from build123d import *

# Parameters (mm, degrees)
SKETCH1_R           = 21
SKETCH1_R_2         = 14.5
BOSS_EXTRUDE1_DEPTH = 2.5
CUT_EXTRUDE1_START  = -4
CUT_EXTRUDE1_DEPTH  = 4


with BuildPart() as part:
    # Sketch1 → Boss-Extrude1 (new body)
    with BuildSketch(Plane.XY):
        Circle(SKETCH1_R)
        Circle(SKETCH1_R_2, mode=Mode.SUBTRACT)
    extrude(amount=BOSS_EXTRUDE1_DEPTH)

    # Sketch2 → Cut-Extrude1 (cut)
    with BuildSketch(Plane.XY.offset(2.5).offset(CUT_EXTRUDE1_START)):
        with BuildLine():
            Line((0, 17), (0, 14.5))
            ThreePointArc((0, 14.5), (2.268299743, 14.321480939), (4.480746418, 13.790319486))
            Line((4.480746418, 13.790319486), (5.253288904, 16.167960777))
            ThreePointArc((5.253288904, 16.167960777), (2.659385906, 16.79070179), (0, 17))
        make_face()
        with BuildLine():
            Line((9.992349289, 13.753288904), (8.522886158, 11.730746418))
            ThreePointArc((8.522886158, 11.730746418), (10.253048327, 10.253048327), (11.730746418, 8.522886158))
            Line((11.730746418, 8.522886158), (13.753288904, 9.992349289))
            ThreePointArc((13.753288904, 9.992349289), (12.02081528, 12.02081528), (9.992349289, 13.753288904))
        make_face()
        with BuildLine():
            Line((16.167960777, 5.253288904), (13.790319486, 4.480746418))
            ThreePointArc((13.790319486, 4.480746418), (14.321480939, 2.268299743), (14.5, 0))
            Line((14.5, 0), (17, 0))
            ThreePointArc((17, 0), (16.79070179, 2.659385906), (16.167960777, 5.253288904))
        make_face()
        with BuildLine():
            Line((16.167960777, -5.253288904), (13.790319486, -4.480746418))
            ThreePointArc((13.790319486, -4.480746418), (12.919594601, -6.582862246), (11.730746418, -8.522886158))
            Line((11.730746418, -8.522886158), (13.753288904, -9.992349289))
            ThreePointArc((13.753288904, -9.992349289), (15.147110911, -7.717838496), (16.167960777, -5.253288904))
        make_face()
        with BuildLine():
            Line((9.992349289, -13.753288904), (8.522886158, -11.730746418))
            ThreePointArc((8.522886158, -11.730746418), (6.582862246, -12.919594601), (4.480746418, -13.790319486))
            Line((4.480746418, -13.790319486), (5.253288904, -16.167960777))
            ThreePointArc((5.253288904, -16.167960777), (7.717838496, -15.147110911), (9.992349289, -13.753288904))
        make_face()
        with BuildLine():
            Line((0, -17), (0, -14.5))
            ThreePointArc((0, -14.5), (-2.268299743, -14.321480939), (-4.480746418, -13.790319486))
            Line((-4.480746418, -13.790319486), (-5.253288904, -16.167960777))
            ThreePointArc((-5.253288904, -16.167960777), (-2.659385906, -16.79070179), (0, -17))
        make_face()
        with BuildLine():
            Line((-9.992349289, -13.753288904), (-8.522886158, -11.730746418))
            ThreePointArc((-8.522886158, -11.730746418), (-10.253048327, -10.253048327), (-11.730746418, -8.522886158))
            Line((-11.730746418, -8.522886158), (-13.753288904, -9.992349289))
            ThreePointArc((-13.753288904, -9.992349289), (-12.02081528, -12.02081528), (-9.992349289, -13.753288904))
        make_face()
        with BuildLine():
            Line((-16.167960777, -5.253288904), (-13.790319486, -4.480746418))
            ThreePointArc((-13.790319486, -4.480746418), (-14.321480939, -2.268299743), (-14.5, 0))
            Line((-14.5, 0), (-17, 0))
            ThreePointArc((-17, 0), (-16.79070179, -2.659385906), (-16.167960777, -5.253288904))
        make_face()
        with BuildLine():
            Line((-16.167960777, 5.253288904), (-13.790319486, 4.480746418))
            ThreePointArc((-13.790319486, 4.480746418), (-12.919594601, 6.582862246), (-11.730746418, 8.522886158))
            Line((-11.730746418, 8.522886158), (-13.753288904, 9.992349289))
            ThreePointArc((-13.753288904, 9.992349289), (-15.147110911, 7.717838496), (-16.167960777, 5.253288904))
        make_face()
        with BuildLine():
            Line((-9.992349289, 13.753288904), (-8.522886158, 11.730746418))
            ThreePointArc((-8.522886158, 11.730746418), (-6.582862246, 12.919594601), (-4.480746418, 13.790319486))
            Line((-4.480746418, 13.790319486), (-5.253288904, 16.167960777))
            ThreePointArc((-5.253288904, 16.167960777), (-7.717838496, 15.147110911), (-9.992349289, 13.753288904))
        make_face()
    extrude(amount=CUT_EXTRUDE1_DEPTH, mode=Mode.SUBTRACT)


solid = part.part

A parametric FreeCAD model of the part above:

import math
import FreeCAD as App
import Part
import Sketcher
from FreeCAD import Vector
Q = App.Units.Quantity

doc = App.newDocument("Part")
body = doc.addObject("PartDesign::Body", "Body")

# Sketch on XY plane
sketch1 = doc.addObject("Sketcher::SketchObject", "Sketch")
body.addObject(sketch1)
sketch1.AttachmentSupport = (doc.XY_Plane, [""])
sketch1.MapMode = "FlatFace"
sketch1.addGeometry(Part.Circle(Vector(0, 0, 0), Vector(0, 0, 1), 21), False)
sketch1.addGeometry(Part.Circle(Vector(0, 0, 0), Vector(0, 0, 1), 14.5), False)
sketch1.addConstraint(Sketcher.Constraint("Coincident", 0, 3, -1, 1))
sketch1.addConstraint(Sketcher.Constraint("Coincident", 1, 3, -1, 1))
sketch1.addConstraint(Sketcher.Constraint("Diameter", 0, 42.0))
sketch1.addConstraint(Sketcher.Constraint("Diameter", 1, 29.0))
pad1 = doc.addObject("PartDesign::Pad", "Pad")
body.addObject(pad1)
pad1.Profile = sketch1
pad1.Length = 2.5

# Sketch on XY plane
sketch2 = doc.addObject("Sketcher::SketchObject", "Sketch001")
body.addObject(sketch2)
sketch2.AttachmentSupport = (doc.XY_Plane, [""])
sketch2.MapMode = "FlatFace"
sketch2.AttachmentOffset = App.Placement(Vector(0, 0, -1.5), App.Rotation())
sketch2.addGeometry(Part.LineSegment(Vector(0, 17, 0), Vector(0, 14.5, 0)), False)
sketch2.addGeometry(Part.ArcOfCircle(Part.Circle(Vector(0, 0, 0), Vector(0, 0, 1), 14.5), math.radians(72), math.radians(90)), False)
sketch2.addGeometry(Part.LineSegment(Vector(4.480746, 13.790319, 0), Vector(5.253289, 16.167961, 0)), False)
sketch2.addGeometry(Part.ArcOfCircle(Part.Circle(Vector(0, 0, 0), Vector(0, 0, 1), 17), math.radians(72), math.radians(90)), False)
sketch2.addGeometry(Part.LineSegment(Vector(9.992349, 13.753289, 0), Vector(8.522886, 11.730746, 0)), False)
sketch2.addGeometry(Part.ArcOfCircle(Part.Circle(Vector(0, 0, 0), Vector(0, 0, 1), 14.5), math.radians(36), math.radians(54)), False)
sketch2.addGeometry(Part.LineSegment(Vector(11.730746, 8.522886, 0), Vector(13.753289, 9.992349, 0)), False)
sketch2.addGeometry(Part.ArcOfCircle(Part.Circle(Vector(0, 0, 0), Vector(0, 0, 1), 17), math.radians(36), math.radians(54)), False)
sketch2.addGeometry(Part.LineSegment(Vector(16.167961, 5.253289, 0), Vector(13.790319, 4.480746, 0)), False)
sketch2.addGeometry(Part.ArcOfCircle(Part.Circle(Vector(0, 0, 0), Vector(0, 0, 1), 14.5), math.radians(0), math.radians(18)), False)
sketch2.addGeometry(Part.LineSegment(Vector(14.5, 0, 0), Vector(17, 0, 0)), False)
sketch2.addGeometry(Part.ArcOfCircle(Part.Circle(Vector(0, 0, 0), Vector(0, 0, 1), 17), math.radians(0), math.radians(18)), False)
sketch2.addGeometry(Part.LineSegment(Vector(16.167961, -5.253289, 0), Vector(13.790319, -4.480746, 0)), False)
sketch2.addGeometry(Part.ArcOfCircle(Part.Circle(Vector(0, 0, 0), Vector(0, 0, 1), 14.5), math.radians(-36), math.radians(-18)), False)
sketch2.addGeometry(Part.LineSegment(Vector(11.730746, -8.522886, 0), Vector(13.753289, -9.992349, 0)), False)
sketch2.addGeometry(Part.ArcOfCircle(Part.Circle(Vector(0, 0, 0), Vector(0, 0, 1), 17), math.radians(-36), math.radians(-18)), False)
sketch2.addGeometry(Part.LineSegment(Vector(9.992349, -13.753289, 0), Vector(8.522886, -11.730746, 0)), False)
sketch2.addGeometry(Part.ArcOfCircle(Part.Circle(Vector(0, 0, 0), Vector(0, 0, 1), 14.5), math.radians(-72), math.radians(-54)), False)
sketch2.addGeometry(Part.LineSegment(Vector(4.480746, -13.790319, 0), Vector(5.253289, -16.167961, 0)), False)
sketch2.addGeometry(Part.ArcOfCircle(Part.Circle(Vector(0, 0, 0), Vector(0, 0, 1), 17), math.radians(-72), math.radians(-54)), False)
sketch2.addGeometry(Part.LineSegment(Vector(0, -17, 0), Vector(0, -14.5, 0)), False)
sketch2.addGeometry(Part.ArcOfCircle(Part.Circle(Vector(0, 0, 0), Vector(0, 0, 1), 14.5), math.radians(-108), math.radians(-90)), False)
sketch2.addGeometry(Part.LineSegment(Vector(-4.480746, -13.790319, 0), Vector(-5.253289, -16.167961, 0)), False)
sketch2.addGeometry(Part.ArcOfCircle(Part.Circle(Vector(0, 0, 0), Vector(0, 0, 1), 17), math.radians(-108), math.radians(-90)), False)
sketch2.addGeometry(Part.LineSegment(Vector(-9.992349, -13.753289, 0), Vector(-8.522886, -11.730746, 0)), False)
sketch2.addGeometry(Part.ArcOfCircle(Part.Circle(Vector(0, 0, 0), Vector(0, 0, 1), 14.5), math.radians(-144), math.radians(-126)), False)
sketch2.addGeometry(Part.LineSegment(Vector(-11.730746, -8.522886, 0), Vector(-13.753289, -9.992349, 0)), False)
sketch2.addGeometry(Part.ArcOfCircle(Part.Circle(Vector(0, 0, 0), Vector(0, 0, 1), 17), math.radians(-144), math.radians(-126)), False)
sketch2.addGeometry(Part.LineSegment(Vector(-16.167961, -5.253289, 0), Vector(-13.790319, -4.480746, 0)), False)
sketch2.addGeometry(Part.ArcOfCircle(Part.Circle(Vector(0, 0, 0), Vector(0, 0, 1), 14.5), math.radians(180), math.radians(198)), False)
sketch2.addGeometry(Part.LineSegment(Vector(-14.5, 0, 0), Vector(-17, 0, 0)), False)
sketch2.addGeometry(Part.ArcOfCircle(Part.Circle(Vector(0, 0, 0), Vector(0, 0, 1), 17), math.radians(180), math.radians(198)), False)
sketch2.addGeometry(Part.LineSegment(Vector(-16.167961, 5.253289, 0), Vector(-13.790319, 4.480746, 0)), False)
sketch2.addGeometry(Part.ArcOfCircle(Part.Circle(Vector(0, 0, 0), Vector(0, 0, 1), 14.5), math.radians(144), math.radians(162)), False)
sketch2.addGeometry(Part.LineSegment(Vector(-11.730746, 8.522886, 0), Vector(-13.753289, 9.992349, 0)), False)
sketch2.addGeometry(Part.ArcOfCircle(Part.Circle(Vector(0, 0, 0), Vector(0, 0, 1), 17), math.radians(144), math.radians(162)), False)
sketch2.addGeometry(Part.LineSegment(Vector(-9.992349, 13.753289, 0), Vector(-8.522886, 11.730746, 0)), False)
sketch2.addGeometry(Part.ArcOfCircle(Part.Circle(Vector(0, 0, 0), Vector(0, 0, 1), 14.5), math.radians(108), math.radians(126)), False)
sketch2.addGeometry(Part.LineSegment(Vector(-4.480746, 13.790319, 0), Vector(-5.253289, 16.167961, 0)), False)
sketch2.addGeometry(Part.ArcOfCircle(Part.Circle(Vector(0, 0, 0), Vector(0, 0, 1), 17), math.radians(108), math.radians(126)), False)
sketch2.addConstraint(Sketcher.Constraint("Coincident", 0, 2, 1, 2))
sketch2.addConstraint(Sketcher.Constraint("Coincident", 1, 1, 2, 1))
sketch2.addConstraint(Sketcher.Constraint("Coincident", 2, 2, 3, 1))
sketch2.addConstraint(Sketcher.Constraint("Coincident", 3, 2, 0, 1))
sketch2.addConstraint(Sketcher.Constraint("Coincident", 4, 2, 5, 2))
sketch2.addConstraint(Sketcher.Constraint("Coincident", 5, 1, 6, 1))
sketch2.addConstraint(Sketcher.Constraint("Coincident", 6, 2, 7, 1))
sketch2.addConstraint(Sketcher.Constraint("Coincident", 7, 2, 4, 1))
sketch2.addConstraint(Sketcher.Constraint("Coincident", 8, 2, 9, 2))
sketch2.addConstraint(Sketcher.Constraint("Coincident", 9, 1, 10, 1))
sketch2.addConstraint(Sketcher.Constraint("Coincident", 10, 2, 11, 1))
sketch2.addConstraint(Sketcher.Constraint("Coincident", 11, 2, 8, 1))
sketch2.addConstraint(Sketcher.Constraint("Coincident", 12, 2, 13, 2))
sketch2.addConstraint(Sketcher.Constraint("Coincident", 13, 1, 14, 1))
sketch2.addConstraint(Sketcher.Constraint("Coincident", 14, 2, 15, 1))
sketch2.addConstraint(Sketcher.Constraint("Coincident", 15, 2, 12, 1))
sketch2.addConstraint(Sketcher.Constraint("Coincident", 16, 2, 17, 2))
sketch2.addConstraint(Sketcher.Constraint("Coincident", 17, 1, 18, 1))
sketch2.addConstraint(Sketcher.Constraint("Coincident", 18, 2, 19, 1))
sketch2.addConstraint(Sketcher.Constraint("Coincident", 19, 2, 16, 1))
sketch2.addConstraint(Sketcher.Constraint("Coincident", 20, 2, 21, 2))
sketch2.addConstraint(Sketcher.Constraint("Coincident", 21, 1, 22, 1))
sketch2.addConstraint(Sketcher.Constraint("Coincident", 22, 2, 23, 1))
sketch2.addConstraint(Sketcher.Constraint("Coincident", 23, 2, 20, 1))
sketch2.addConstraint(Sketcher.Constraint("Coincident", 24, 2, 25, 2))
sketch2.addConstraint(Sketcher.Constraint("Coincident", 25, 1, 26, 1))
sketch2.addConstraint(Sketcher.Constraint("Coincident", 26, 2, 27, 1))
sketch2.addConstraint(Sketcher.Constraint("Coincident", 27, 2, 24, 1))
sketch2.addConstraint(Sketcher.Constraint("Coincident", 28, 2, 29, 2))
sketch2.addConstraint(Sketcher.Constraint("Coincident", 29, 1, 30, 1))
sketch2.addConstraint(Sketcher.Constraint("Coincident", 30, 2, 31, 1))
sketch2.addConstraint(Sketcher.Constraint("Coincident", 31, 2, 28, 1))
sketch2.addConstraint(Sketcher.Constraint("Coincident", 32, 2, 33, 2))
sketch2.addConstraint(Sketcher.Constraint("Coincident", 33, 1, 34, 1))
sketch2.addConstraint(Sketcher.Constraint("Coincident", 34, 2, 35, 1))
sketch2.addConstraint(Sketcher.Constraint("Coincident", 35, 2, 32, 1))
sketch2.addConstraint(Sketcher.Constraint("Coincident", 36, 2, 37, 2))
sketch2.addConstraint(Sketcher.Constraint("Coincident", 37, 1, 38, 1))
sketch2.addConstraint(Sketcher.Constraint("Coincident", 38, 2, 39, 1))
sketch2.addConstraint(Sketcher.Constraint("Coincident", 39, 2, 36, 1))
sketch2.addConstraint(Sketcher.Constraint("Vertical", 0))
sketch2.addConstraint(Sketcher.Constraint("Horizontal", 10))
sketch2.addConstraint(Sketcher.Constraint("Vertical", 20))
sketch2.addConstraint(Sketcher.Constraint("Horizontal", 30))
sketch2.addConstraint(Sketcher.Constraint("Coincident", 1, 3, -1, 1))
sketch2.addConstraint(Sketcher.Constraint("Coincident", 3, 3, -1, 1))
sketch2.addConstraint(Sketcher.Constraint("Coincident", 5, 3, -1, 1))
sketch2.addConstraint(Sketcher.Constraint("Coincident", 7, 3, -1, 1))
sketch2.addConstraint(Sketcher.Constraint("Coincident", 9, 3, -1, 1))
sketch2.addConstraint(Sketcher.Constraint("Coincident", 11, 3, -1, 1))
sketch2.addConstraint(Sketcher.Constraint("Coincident", 13, 3, -1, 1))
sketch2.addConstraint(Sketcher.Constraint("Coincident", 15, 3, -1, 1))
sketch2.addConstraint(Sketcher.Constraint("Coincident", 17, 3, -1, 1))
sketch2.addConstraint(Sketcher.Constraint("Coincident", 19, 3, -1, 1))
sketch2.addConstraint(Sketcher.Constraint("Coincident", 21, 3, -1, 1))
sketch2.addConstraint(Sketcher.Constraint("Coincident", 23, 3, -1, 1))
sketch2.addConstraint(Sketcher.Constraint("Coincident", 25, 3, -1, 1))
sketch2.addConstraint(Sketcher.Constraint("Coincident", 27, 3, -1, 1))
sketch2.addConstraint(Sketcher.Constraint("Coincident", 29, 3, -1, 1))
sketch2.addConstraint(Sketcher.Constraint("Coincident", 31, 3, -1, 1))
sketch2.addConstraint(Sketcher.Constraint("Coincident", 33, 3, -1, 1))
sketch2.addConstraint(Sketcher.Constraint("Coincident", 35, 3, -1, 1))
sketch2.addConstraint(Sketcher.Constraint("Coincident", 37, 3, -1, 1))
sketch2.addConstraint(Sketcher.Constraint("Coincident", 39, 3, -1, 1))
sketch2.addConstraint(Sketcher.Constraint("Equal", 1, 5))
sketch2.addConstraint(Sketcher.Constraint("Equal", 3, 7))
sketch2.addConstraint(Sketcher.Constraint("Equal", 5, 9))
sketch2.addConstraint(Sketcher.Constraint("Equal", 7, 11))
sketch2.addConstraint(Sketcher.Constraint("Equal", 9, 13))
sketch2.addConstraint(Sketcher.Constraint("Equal", 11, 15))
sketch2.addConstraint(Sketcher.Constraint("Equal", 13, 17))
sketch2.addConstraint(Sketcher.Constraint("Equal", 15, 19))
sketch2.addConstraint(Sketcher.Constraint("Equal", 17, 21))
sketch2.addConstraint(Sketcher.Constraint("Equal", 19, 23))
sketch2.addConstraint(Sketcher.Constraint("Equal", 21, 25))
sketch2.addConstraint(Sketcher.Constraint("Equal", 23, 27))
sketch2.addConstraint(Sketcher.Constraint("Equal", 25, 29))
sketch2.addConstraint(Sketcher.Constraint("Equal", 27, 31))
sketch2.addConstraint(Sketcher.Constraint("Equal", 29, 33))
sketch2.addConstraint(Sketcher.Constraint("Equal", 31, 35))
sketch2.addConstraint(Sketcher.Constraint("Equal", 33, 37))
sketch2.addConstraint(Sketcher.Constraint("Equal", 35, 39))
sketch2.addConstraint(Sketcher.Constraint("PointOnObject", 0, 2, -2))
sketch2.addConstraint(Sketcher.Constraint("PointOnObject", 9, 1, -1))
sketch2.addConstraint(Sketcher.Constraint("PointOnObject", 20, 2, -2))
sketch2.addConstraint(Sketcher.Constraint("PointOnObject", 29, 1, -1))
sketch2.addConstraint(Sketcher.Constraint("Perpendicular", 2, 12))
sketch2.addConstraint(Sketcher.Constraint("Perpendicular", 4, 14))
sketch2.addConstraint(Sketcher.Constraint("Perpendicular", 6, 16))
sketch2.addConstraint(Sketcher.Constraint("Perpendicular", 8, 18))
sketch2.addConstraint(Sketcher.Constraint("Perpendicular", 12, 22))
sketch2.addConstraint(Sketcher.Constraint("Perpendicular", 14, 24))
sketch2.addConstraint(Sketcher.Constraint("Perpendicular", 16, 26))
sketch2.addConstraint(Sketcher.Constraint("Perpendicular", 18, 28))
sketch2.addConstraint(Sketcher.Constraint("Perpendicular", 22, 32))
sketch2.addConstraint(Sketcher.Constraint("Perpendicular", 24, 34))
sketch2.addConstraint(Sketcher.Constraint("Perpendicular", 26, 36))
sketch2.addConstraint(Sketcher.Constraint("Perpendicular", 28, 38))
sketch2.addConstraint(Sketcher.Constraint("Horizontal", 17, 1, 21, 1))
sketch2.addConstraint(Sketcher.Constraint("Horizontal", 18, 2, 22, 2))
sketch2.addConstraint(Sketcher.Constraint("Horizontal", 16, 2, 24, 2))
sketch2.addConstraint(Sketcher.Constraint("Horizontal", 13, 1, 25, 1))
sketch2.addConstraint(Sketcher.Constraint("Horizontal", 14, 2, 26, 2))
sketch2.addConstraint(Sketcher.Constraint("Horizontal", 12, 2, 28, 2))
sketch2.addConstraint(Sketcher.Constraint("Horizontal", 8, 2, 32, 2))
sketch2.addConstraint(Sketcher.Constraint("Horizontal", 5, 1, 33, 1))
sketch2.addConstraint(Sketcher.Constraint("Horizontal", 4, 2, 36, 2))
sketch2.addConstraint(Sketcher.Constraint("Horizontal", 1, 1, 37, 1))
sketch2.addConstraint(Sketcher.Constraint("Vertical", 8, 2, 12, 2))
sketch2.addConstraint(Sketcher.Constraint("Vertical", 5, 1, 13, 1))
sketch2.addConstraint(Sketcher.Constraint("Vertical", 4, 2, 16, 2))
sketch2.addConstraint(Sketcher.Constraint("Vertical", 1, 1, 17, 1))
sketch2.addConstraint(Sketcher.Constraint("Radius", 3, 17.0))
sketch2.addConstraint(Sketcher.Constraint("Radius", 1, 14.5))
sketch2.addConstraint(Sketcher.Constraint("Angle", 2, Q("72 deg")))
sketch2.addConstraint(Sketcher.Constraint("Angle", 4, Q("-126 deg")))
sketch2.addConstraint(Sketcher.Constraint("DistanceX", 2, 2, 6, 2, 8.5))
sketch2.addConstraint(Sketcher.Constraint("DistanceY", 8, 2, 4, 2, 7.25))
sketch2.addConstraint(Sketcher.Constraint("DistanceY", -1, 1, 1, 1, 13.790319))
sketch2.addConstraint(Sketcher.Constraint("DistanceX", -1, 1, 7, 2, 9.992349))
pocket1 = doc.addObject("PartDesign::Pocket", "Pocket")
body.addObject(pocket1)
pocket1.Profile = sketch2
pocket1.Length = 4
pocket1.Reversed = True

doc.recompute()
